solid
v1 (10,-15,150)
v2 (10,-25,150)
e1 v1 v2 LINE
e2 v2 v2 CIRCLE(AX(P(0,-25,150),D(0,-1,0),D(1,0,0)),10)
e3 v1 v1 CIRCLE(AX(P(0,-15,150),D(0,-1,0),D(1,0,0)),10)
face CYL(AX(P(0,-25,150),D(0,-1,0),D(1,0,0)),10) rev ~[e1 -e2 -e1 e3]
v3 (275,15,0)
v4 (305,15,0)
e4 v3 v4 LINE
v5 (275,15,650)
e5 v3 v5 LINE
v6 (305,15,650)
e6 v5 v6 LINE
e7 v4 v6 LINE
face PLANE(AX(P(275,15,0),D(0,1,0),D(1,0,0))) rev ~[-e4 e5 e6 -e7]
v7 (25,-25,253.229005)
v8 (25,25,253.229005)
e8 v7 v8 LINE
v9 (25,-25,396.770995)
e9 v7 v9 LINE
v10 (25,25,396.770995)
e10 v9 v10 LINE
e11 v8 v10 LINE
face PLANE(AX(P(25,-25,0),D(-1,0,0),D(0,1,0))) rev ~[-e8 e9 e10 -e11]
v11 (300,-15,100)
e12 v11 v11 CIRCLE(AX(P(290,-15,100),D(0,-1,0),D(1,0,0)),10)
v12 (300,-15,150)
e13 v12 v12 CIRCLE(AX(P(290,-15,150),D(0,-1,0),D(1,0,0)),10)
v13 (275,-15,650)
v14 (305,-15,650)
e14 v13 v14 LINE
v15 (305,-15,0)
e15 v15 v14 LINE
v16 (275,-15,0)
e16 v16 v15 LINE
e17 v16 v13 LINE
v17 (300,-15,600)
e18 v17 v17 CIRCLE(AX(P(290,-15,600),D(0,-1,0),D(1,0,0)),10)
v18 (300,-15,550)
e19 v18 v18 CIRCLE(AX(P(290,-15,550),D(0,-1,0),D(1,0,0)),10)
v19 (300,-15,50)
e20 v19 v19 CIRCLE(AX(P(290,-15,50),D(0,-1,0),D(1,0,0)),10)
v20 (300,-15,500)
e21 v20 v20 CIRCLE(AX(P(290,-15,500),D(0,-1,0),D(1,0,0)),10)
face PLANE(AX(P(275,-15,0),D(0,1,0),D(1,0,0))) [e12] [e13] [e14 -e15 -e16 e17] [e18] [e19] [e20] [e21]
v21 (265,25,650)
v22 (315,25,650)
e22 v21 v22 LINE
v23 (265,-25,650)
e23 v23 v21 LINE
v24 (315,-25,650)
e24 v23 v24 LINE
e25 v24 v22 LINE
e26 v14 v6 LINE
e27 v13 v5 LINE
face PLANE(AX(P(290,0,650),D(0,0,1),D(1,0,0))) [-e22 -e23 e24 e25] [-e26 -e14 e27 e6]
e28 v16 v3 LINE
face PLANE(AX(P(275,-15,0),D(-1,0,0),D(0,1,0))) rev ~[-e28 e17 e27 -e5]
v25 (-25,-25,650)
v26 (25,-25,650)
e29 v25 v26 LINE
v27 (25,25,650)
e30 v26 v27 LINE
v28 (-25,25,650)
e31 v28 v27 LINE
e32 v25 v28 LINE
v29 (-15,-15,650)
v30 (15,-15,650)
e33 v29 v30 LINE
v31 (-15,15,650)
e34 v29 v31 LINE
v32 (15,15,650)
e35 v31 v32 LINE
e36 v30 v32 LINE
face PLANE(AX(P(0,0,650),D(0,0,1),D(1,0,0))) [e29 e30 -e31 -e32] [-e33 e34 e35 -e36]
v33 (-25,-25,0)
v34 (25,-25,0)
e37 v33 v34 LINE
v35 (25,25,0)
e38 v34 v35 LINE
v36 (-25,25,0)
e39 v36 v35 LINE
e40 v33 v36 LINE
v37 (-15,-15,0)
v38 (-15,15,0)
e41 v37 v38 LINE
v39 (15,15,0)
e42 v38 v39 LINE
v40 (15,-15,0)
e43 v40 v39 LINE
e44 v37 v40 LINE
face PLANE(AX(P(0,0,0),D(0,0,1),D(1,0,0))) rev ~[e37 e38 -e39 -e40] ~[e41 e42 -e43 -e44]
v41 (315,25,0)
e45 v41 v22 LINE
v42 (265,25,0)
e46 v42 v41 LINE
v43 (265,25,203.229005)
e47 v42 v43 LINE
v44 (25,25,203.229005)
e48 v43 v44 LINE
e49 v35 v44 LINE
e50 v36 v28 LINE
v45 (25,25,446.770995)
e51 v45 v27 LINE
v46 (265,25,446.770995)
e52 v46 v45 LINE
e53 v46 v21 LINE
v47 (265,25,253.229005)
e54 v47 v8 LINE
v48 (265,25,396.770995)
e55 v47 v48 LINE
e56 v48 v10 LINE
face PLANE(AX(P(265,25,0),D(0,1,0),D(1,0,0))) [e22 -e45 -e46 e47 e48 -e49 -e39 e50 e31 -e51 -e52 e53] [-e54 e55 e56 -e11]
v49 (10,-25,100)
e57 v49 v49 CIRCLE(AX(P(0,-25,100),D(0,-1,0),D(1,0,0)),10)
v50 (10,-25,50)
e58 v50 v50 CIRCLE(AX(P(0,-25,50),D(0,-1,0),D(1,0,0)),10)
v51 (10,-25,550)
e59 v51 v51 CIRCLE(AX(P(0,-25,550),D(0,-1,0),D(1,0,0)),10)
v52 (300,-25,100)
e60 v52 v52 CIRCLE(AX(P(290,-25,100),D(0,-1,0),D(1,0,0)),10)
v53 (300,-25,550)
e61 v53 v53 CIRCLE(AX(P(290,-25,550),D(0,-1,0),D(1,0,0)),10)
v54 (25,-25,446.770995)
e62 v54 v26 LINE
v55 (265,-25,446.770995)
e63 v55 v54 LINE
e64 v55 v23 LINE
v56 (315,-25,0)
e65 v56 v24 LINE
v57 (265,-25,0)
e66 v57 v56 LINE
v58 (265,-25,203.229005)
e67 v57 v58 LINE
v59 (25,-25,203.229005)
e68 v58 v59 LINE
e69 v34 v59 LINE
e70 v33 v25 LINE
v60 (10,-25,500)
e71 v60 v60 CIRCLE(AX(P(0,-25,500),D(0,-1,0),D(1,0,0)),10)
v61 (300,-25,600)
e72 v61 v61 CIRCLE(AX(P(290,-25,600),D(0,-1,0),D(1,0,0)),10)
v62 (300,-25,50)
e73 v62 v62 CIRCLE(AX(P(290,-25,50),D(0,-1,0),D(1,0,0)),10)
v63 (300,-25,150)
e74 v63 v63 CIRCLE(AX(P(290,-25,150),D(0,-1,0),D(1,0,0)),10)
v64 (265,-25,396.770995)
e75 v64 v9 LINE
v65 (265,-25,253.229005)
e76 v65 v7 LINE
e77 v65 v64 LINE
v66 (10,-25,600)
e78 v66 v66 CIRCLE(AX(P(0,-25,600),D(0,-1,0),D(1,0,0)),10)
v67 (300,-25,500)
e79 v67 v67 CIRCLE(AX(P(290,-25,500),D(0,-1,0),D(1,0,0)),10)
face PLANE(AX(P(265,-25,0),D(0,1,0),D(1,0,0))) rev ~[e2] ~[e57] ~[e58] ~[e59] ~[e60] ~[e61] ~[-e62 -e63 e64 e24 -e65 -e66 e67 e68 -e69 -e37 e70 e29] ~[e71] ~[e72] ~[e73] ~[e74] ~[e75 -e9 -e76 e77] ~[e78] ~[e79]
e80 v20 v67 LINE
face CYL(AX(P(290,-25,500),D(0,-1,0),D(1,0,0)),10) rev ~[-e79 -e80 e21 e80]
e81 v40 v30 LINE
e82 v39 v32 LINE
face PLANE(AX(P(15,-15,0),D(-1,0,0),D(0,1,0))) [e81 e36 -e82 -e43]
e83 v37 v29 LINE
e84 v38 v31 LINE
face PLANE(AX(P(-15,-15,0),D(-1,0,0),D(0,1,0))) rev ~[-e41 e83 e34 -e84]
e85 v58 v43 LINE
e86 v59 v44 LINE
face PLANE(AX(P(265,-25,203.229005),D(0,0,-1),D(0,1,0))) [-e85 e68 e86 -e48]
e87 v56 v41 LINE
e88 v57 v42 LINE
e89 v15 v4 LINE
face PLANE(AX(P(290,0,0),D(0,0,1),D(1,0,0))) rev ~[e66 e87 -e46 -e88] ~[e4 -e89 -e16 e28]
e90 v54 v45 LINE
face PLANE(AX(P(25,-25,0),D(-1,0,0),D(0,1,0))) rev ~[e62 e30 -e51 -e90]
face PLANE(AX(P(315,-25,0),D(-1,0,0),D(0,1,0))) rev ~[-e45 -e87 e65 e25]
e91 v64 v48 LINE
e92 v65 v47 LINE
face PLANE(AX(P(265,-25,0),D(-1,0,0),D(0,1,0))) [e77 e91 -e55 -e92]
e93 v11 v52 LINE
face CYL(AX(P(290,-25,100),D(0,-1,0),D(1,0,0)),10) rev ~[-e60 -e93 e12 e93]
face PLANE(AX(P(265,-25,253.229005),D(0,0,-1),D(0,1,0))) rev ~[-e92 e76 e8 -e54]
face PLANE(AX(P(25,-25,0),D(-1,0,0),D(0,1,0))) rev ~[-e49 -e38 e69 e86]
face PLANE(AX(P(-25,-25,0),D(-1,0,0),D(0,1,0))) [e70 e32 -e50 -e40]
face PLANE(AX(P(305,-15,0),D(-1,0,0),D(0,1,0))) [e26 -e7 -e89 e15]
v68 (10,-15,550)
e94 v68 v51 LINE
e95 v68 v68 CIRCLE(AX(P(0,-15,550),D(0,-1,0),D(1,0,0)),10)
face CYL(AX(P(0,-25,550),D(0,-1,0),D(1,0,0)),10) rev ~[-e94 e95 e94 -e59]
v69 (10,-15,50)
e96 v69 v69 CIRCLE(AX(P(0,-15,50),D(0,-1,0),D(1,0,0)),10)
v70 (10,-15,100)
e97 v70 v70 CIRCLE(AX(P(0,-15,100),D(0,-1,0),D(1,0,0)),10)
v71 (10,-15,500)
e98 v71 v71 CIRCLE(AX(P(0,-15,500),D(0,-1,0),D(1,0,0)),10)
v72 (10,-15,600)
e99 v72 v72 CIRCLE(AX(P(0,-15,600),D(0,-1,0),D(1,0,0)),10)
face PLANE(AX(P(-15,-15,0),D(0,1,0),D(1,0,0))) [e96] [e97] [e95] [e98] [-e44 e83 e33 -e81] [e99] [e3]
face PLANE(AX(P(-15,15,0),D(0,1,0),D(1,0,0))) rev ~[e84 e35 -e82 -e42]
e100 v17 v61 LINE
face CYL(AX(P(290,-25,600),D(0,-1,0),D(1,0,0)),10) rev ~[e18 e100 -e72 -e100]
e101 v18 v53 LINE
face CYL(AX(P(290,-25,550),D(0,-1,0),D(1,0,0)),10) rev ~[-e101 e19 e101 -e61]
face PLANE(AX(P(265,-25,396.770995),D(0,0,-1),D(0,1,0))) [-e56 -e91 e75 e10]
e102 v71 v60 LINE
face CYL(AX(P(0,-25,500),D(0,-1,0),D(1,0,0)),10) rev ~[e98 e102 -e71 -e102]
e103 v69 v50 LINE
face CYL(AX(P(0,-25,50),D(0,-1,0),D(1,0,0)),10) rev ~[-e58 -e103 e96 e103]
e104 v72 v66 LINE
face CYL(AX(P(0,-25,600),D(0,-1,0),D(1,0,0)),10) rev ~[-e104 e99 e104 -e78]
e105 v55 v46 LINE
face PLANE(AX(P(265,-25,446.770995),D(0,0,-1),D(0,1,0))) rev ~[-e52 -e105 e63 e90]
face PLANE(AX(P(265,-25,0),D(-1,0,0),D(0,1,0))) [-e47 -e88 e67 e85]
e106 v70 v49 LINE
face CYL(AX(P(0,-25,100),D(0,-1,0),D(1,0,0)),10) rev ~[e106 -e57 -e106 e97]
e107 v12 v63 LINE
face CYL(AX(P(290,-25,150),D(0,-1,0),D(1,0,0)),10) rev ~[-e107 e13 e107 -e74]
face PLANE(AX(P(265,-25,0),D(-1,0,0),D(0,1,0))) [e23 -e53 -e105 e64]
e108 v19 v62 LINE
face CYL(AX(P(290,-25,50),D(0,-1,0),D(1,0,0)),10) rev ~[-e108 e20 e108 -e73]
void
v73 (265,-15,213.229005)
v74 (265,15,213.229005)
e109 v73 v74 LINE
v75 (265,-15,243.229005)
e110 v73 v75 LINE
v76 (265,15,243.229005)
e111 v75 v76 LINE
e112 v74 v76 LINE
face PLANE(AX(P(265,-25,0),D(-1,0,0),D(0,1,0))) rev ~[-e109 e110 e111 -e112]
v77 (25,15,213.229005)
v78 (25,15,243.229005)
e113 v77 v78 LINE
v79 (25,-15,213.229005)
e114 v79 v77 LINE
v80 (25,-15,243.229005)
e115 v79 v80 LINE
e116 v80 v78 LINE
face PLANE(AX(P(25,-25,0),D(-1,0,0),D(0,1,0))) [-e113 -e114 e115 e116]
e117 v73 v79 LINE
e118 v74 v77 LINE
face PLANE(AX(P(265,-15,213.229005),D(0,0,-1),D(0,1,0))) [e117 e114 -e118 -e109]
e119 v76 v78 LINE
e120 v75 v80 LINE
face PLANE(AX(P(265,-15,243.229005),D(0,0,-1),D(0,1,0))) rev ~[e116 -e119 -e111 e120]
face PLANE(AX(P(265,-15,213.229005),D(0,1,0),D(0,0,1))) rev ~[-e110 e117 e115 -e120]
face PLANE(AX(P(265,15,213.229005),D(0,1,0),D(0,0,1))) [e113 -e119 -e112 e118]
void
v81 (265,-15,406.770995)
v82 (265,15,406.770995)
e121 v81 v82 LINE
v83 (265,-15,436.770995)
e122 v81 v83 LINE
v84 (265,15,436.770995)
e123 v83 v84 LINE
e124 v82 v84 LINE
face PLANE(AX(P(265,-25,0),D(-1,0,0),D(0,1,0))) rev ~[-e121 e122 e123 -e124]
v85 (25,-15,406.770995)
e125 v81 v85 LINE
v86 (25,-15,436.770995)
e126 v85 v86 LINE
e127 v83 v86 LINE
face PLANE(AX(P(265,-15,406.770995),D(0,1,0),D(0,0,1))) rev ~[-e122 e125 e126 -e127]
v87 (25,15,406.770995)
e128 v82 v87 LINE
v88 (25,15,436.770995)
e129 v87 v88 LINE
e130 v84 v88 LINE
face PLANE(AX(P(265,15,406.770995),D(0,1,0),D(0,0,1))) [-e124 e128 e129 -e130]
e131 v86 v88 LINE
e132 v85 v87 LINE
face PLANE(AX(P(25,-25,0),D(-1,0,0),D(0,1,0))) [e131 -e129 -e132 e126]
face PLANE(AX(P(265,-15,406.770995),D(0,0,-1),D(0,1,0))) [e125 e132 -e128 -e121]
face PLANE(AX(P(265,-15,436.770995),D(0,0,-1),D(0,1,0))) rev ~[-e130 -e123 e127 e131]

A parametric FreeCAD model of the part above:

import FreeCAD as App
import Part
import Sketcher

V = App.Vector
Q = App.Units.Quantity


def add_polygon(sketch, points):
    """Adds a closed chain of lines whose ends are joined by coincident constraints."""
    first, n = sketch.GeometryCount, len(points)
    for a, b in zip(points, points[1:] + points[:1]):
        sketch.addGeometry(Part.LineSegment(App.Vector(*a, 0), App.Vector(*b, 0)), False)
    for i in range(n):
        sketch.addConstraint(Sketcher.Constraint("Coincident", first + i, 2, first + (i + 1) % n, 1))

doc = App.newDocument("Part")
params = doc.addObject("Spreadsheet::Sheet", "Params")
for row, (alias, value) in enumerate([
    ("sketch1_width", "50 mm"),
    ("sketch1_width2", "30 mm"),
    ("pad1_length", "650 mm"),
    ("sketch2_width", "50 mm"),
    ("sketch2_width2", "30 mm"),
    ("pad2_length", "650 mm"),
    ("sketch3_diameter", "20 mm"),
    ("pad3_length", "18 mm"),
    ("pad3_length2", "13 mm"),
    ("sketch4_width", "50 mm"),
    ("sketch4_width2", "30 mm"),
    ("pad4_length", "240 mm"),
], start=1):
    params.set(f"A{row}", alias)
    params.set(f"B{row}", "=" + value)
    params.setAlias(f"B{row}", alias)

body = doc.addObject("PartDesign::Body", "Body")

sketch1 = body.newObject("Sketcher::SketchObject", "Sketch")
sketch1.AttachmentSupport = (doc.getObject("XY_Plane"), [""])
sketch1.MapMode = "FlatFace"
add_polygon(sketch1, [(-25, 25), (-25, -25), (25, -25), (25, 25)])
add_polygon(sketch1, [(15, -15), (-15, -15), (-15, 15), (15, 15)])
sketch1.addConstraint([
    Sketcher.Constraint("Vertical", 0),
    Sketcher.Constraint("Horizontal", 1),
    Sketcher.Constraint("Vertical", 2),
    Sketcher.Constraint("Horizontal", 3),
    Sketcher.Constraint("Horizontal", 4),
    Sketcher.Constraint("Vertical", 5),
    Sketcher.Constraint("Horizontal", 6),
    Sketcher.Constraint("Vertical", 7),
    Sketcher.Constraint("Symmetric", 0, 2, 2, 2, -1, 1),
    Sketcher.Constraint("Symmetric", 4, 2, 6, 2, -1, 1),
    Sketcher.Constraint("Equal", 3, 0),
    Sketcher.Constraint("Equal", 6, 5),
    Sketcher.Constraint("DistanceX", 1, 1, 1, 2, Q("50 mm")),
    Sketcher.Constraint("DistanceX", 4, 2, 4, 1, Q("30 mm")),
])
sketch1.setExpression("Constraints[20]", "Params.sketch1_width")
sketch1.setExpression("Constraints[21]", "Params.sketch1_width2")
pad1 = body.newObject("PartDesign::Pad", "Pad")
pad1.Profile = sketch1
pad1.setExpression("Length", "Params.pad1_length")
body2 = doc.addObject("PartDesign::Body", "Body001")

sketch2 = body2.newObject("Sketcher::SketchObject", "Sketch001")
sketch2.AttachmentSupport = (doc.getObject("XY_Plane001"), [""])
sketch2.MapMode = "FlatFace"
add_polygon(sketch2, [(265, 25), (265, -25), (315, -25), (315, 25)])
add_polygon(sketch2, [(305, -15), (275, -15), (275, 15), (305, 15)])
sketch2.addConstraint([
    Sketcher.Constraint("Vertical", 0),
    Sketcher.Constraint("Horizontal", 1),
    Sketcher.Constraint("Vertical", 2),
    Sketcher.Constraint("Horizontal", 3),
    Sketcher.Constraint("Horizontal", 4),
    Sketcher.Constraint("Vertical", 5),
    Sketcher.Constraint("Horizontal", 6),
    Sketcher.Constraint("Vertical", 7),
    Sketcher.Constraint("Equal", 3, 0),
    Sketcher.Constraint("Equal", 6, 5),
    Sketcher.Constraint("DistanceX", 1, 1, 1, 2, Q("50 mm")),
    Sketcher.Constraint("DistanceX", 4, 2, 4, 1, Q("30 mm")),
    Sketcher.Constraint("DistanceX", -1, 1, 0, 2, Q("265 mm")),
    Sketcher.Constraint("DistanceY", 0, 2, -1, 1, Q("25 mm")),
    Sketcher.Constraint("DistanceX", -1, 1, 4, 2, Q("275 mm")),
    Sketcher.Constraint("DistanceY", 4, 2, -1, 1, Q("15 mm")),
])
sketch2.setExpression("Constraints[18]", "Params.sketch2_width")
sketch2.setExpression("Constraints[19]", "Params.sketch2_width2")
pad2 = body2.newObject("PartDesign::Pad", "Pad001")
pad2.Profile = sketch2
pad2.setExpression("Length", "Params.pad2_length")
body3 = doc.addObject("PartDesign::Body", "Body002")
body3.AllowCompound = True

sketch3 = body3.newObject("Sketcher::SketchObject", "Sketch002")
sketch3.AttachmentSupport = (doc.getObject("XZ_Plane002"), [""])
sketch3.MapMode = "FlatFace"
sketch3.AttachmentOffset = App.Placement(V(0, 0, 25), App.Rotation())
sketch3.addGeometry([
    Part.Circle(V(290, 600, 0), V(0, 0, 1), 10),
    Part.Circle(V(290, 550, 0), V(0, 0, 1), 10),
    Part.Circle(V(290, 500, 0), V(0, 0, 1), 10),
    Part.Circle(V(290, 150, 0), V(0, 0, 1), 10),
    Part.Circle(V(290, 100, 0), V(0, 0, 1), 10),
    Part.Circle(V(290, 50, 0), V(0, 0, 1), 10),
    Part.Circle(V(0, 500, 0), V(0, 0, 1), 10),
    Part.Circle(V(0, 550, 0), V(0, 0, 1), 10),
    Part.Circle(V(0, 600, 0), V(0, 0, 1), 10),
    Part.Circle(V(0, 50, 0), V(0, 0, 1), 10),
    Part.Circle(V(0, 100, 0), V(0, 0, 1), 10),
    Part.Circle(V(0, 150, 0), V(0, 0, 1), 10),
], False)
sketch3.addConstraint([
    Sketcher.Constraint("Equal", 0, 1),
    Sketcher.Constraint("Equal", 1, 2),
    Sketcher.Constraint("Equal", 2, 3),
    Sketcher.Constraint("Equal", 3, 4),
    Sketcher.Constraint("Equal", 4, 5),
    Sketcher.Constraint("Equal", 5, 6),
    Sketcher.Constraint("Equal", 6, 7),
    Sketcher.Constraint("Equal", 7, 8),
    Sketcher.Constraint("Equal", 8, 9),
    Sketcher.Constraint("Equal", 9, 10),
    Sketcher.Constraint("Equal", 10, 11),
    Sketcher.Constraint("PointOnObject", 6, 3, -2),
    Sketcher.Constraint("PointOnObject", 7, 3, -2),
    Sketcher.Constraint("PointOnObject", 8, 3, -2),
    Sketcher.Constraint("PointOnObject", 9, 3, -2),
    Sketcher.Constraint("PointOnObject", 10, 3, -2),
    Sketcher.Constraint("PointOnObject", 11, 3, -2),
    Sketcher.Constraint("Horizontal", 2, 3, 6, 3),
    Sketcher.Constraint("Horizontal", 1, 3, 7, 3),
    Sketcher.Constraint("Horizontal", 0, 3, 8, 3),
    Sketcher.Constraint("Horizontal", 5, 3, 9, 3),
    Sketcher.Constraint("Horizontal", 4, 3, 10, 3),
    Sketcher.Constraint("Horizontal", 3, 3, 11, 3),
    Sketcher.Constraint("Vertical", 0, 3, 1, 3),
    Sketcher.Constraint("Vertical", 1, 3, 2, 3),
    Sketcher.Constraint("Vertical", 2, 3, 3, 3),
    Sketcher.Constraint("Vertical", 3, 3, 4, 3),
    Sketcher.Constraint("Vertical", 4, 3, 5, 3),
    Sketcher.Constraint("Diameter", 0, Q("20 mm")),
    Sketcher.Constraint("DistanceX", -1, 1, 0, 3, Q("290 mm")),
    Sketcher.Constraint("DistanceY", -1, 1, 0, 3, Q("600 mm")),
    Sketcher.Constraint("DistanceY", -1, 1, 1, 3, Q("550 mm")),
    Sketcher.Constraint("DistanceY", -1, 1, 2, 3, Q("500 mm")),
    Sketcher.Constraint("DistanceY", -1, 1, 3, 3, Q("150 mm")),
    Sketcher.Constraint("DistanceY", -1, 1, 4, 3, Q("100 mm")),
    Sketcher.Constraint("DistanceY", -1, 1, 5, 3, Q("50 mm")),
])
sketch3.setExpression("Constraints[28]", "Params.sketch3_diameter")
pad3 = body3.newObject("PartDesign::Pad", "Pad002")
pad3.Profile = sketch3
pad3.Type = "TwoLengths"
pad3.setExpression("Length", "Params.pad3_length")
pad3.setExpression("Length2", "Params.pad3_length2")
doc.recompute()

body4 = doc.addObject("PartDesign::Body", "Body003")
body4.BaseFeature = body3
boolean = body.newObject("PartDesign::Boolean", "Boolean")
boolean.Type = "Cut"
boolean.addObjects([body4])
doc.recompute()

boolean2 = body2.newObject("PartDesign::Boolean", "Boolean001")
boolean2.Type = "Cut"
boolean2.addObjects([body3])
body.AllowCompound = True
doc.recompute()

boolean3 = body.newObject("PartDesign::Boolean", "Boolean002")
boolean3.Type = "Fuse"
boolean3.addObjects([body2])

sketch4 = body.newObject("Sketcher::SketchObject", "Sketch003")
sketch4.AttachmentSupport = (doc.getObject("YZ_Plane"), [""])
sketch4.MapMode = "FlatFace"
sketch4.AttachmentOffset = App.Placement(V(0, 0, 265), App.Rotation())
add_polygon(sketch4, [(25, 397), (-25, 397), (-25, 447), (25, 447)])
add_polygon(sketch4, [(-15, 437), (-15, 407), (15, 407), (15, 437)])
add_polygon(sketch4, [(25, 203), (-25, 203), (-25, 253), (25, 253)])
add_polygon(sketch4, [(-15, 243), (-15, 213), (15, 213), (15, 243)])
sketch4.addConstraint([
    Sketcher.Constraint("Horizontal", 0),
    Sketcher.Constraint("Vertical", 1),
    Sketcher.Constraint("Horizontal", 2),
    Sketcher.Constraint("Vertical", 3),
    Sketcher.Constraint("Vertical", 4),
    Sketcher.Constraint("Horizontal", 5),
    Sketcher.Constraint("Vertical", 6),
    Sketcher.Constraint("Horizontal", 7),
    Sketcher.Constraint("Horizontal", 8),
    Sketcher.Constraint("Vertical", 9),
    Sketcher.Constraint("Horizontal", 10),
    Sketcher.Constraint("Vertical", 11),
    Sketcher.Constraint("Vertical", 12),
    Sketcher.Constraint("Horizontal", 13),
    Sketcher.Constraint("Vertical", 14),
    Sketcher.Constraint("Horizontal", 15),
    Sketcher.Constraint("Vertical", 1, 2, 8, 2),
    Sketcher.Constraint("Vertical", 3, 2, 10, 2),
    Sketcher.Constraint("Vertical", 7, 2, 12, 2),
    Sketcher.Constraint("Vertical", 6, 2, 13, 2),
    Sketcher.Constraint("Equal", 10, 1),
    Sketcher.Constraint("Equal", 15, 4),
    Sketcher.Constraint("Equal", 3, 9),
    Sketcher.Constraint("Equal", 6, 12),
    Sketcher.Constraint("DistanceX", 0, 2, 0, 1, Q("50 mm")),
    Sketcher.Constraint("DistanceX", 5, 1, 5, 2, Q("30 mm")),
    Sketcher.Constraint("DistanceX", 0, 2, -1, 1, Q("25 mm")),
    Sketcher.Constraint("DistanceX", 4, 2, -1, 1, Q("15 mm")),
    Sketcher.Constraint("DistanceY", 0, 2, 4, 2, Q("10 mm")),
    Sketcher.Constraint("DistanceY", 8, 2, 12, 2, Q("10 mm")),
    Sketcher.Constraint("DistanceY", 8, 2, 0, 2, Q("193.541991 mm")),
    Sketcher.Constraint("DistanceY", -1, 1, 0, 2, Q("396.770995 mm")),
])
sketch4.setExpression("Constraints[40]", "Params.sketch4_width")
sketch4.setExpression("Constraints[41]", "Params.sketch4_width2")
pad4 = body.newObject("PartDesign::Pad", "Pad003")
pad4.Profile = sketch4
pad4.setExpression("Length", "Params.pad4_length")
pad4.Reversed = True

doc.recompute()
